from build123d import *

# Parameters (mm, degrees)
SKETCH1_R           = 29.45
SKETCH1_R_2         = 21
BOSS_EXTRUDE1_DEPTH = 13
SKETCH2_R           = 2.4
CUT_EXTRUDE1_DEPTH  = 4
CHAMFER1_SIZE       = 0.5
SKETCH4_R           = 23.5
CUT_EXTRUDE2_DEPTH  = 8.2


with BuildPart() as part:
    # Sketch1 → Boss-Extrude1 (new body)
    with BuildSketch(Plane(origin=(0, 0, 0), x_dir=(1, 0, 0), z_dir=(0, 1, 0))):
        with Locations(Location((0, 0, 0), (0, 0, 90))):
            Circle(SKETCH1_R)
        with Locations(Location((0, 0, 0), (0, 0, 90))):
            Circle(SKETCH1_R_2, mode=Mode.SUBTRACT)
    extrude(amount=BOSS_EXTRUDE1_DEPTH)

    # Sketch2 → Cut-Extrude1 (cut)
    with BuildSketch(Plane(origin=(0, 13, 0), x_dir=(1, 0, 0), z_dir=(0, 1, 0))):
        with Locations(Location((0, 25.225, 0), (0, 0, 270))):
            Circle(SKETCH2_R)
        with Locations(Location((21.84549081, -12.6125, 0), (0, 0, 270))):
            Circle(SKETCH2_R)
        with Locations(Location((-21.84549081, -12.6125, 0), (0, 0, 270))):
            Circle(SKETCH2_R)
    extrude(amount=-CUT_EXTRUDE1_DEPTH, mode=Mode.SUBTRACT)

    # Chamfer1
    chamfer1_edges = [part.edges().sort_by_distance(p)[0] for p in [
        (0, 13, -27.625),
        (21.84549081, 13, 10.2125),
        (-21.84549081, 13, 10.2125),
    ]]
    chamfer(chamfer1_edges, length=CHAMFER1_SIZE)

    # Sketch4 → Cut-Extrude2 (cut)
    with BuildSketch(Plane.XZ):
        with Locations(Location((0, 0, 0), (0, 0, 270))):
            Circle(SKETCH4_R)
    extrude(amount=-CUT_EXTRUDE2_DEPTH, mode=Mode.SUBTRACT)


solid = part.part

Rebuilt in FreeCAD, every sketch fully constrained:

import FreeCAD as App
import Part
import Sketcher

V = App.Vector


def edges_at(feature, points):
    """Names of the edges that pass closest to the given points."""
    edges = feature.Shape.Edges
    near = lambda p: min(range(len(edges)), key=lambda i: edges[i].distToShape(Part.Vertex(*p))[0])
    return sorted({f"Edge{near(p) + 1}" for p in points})

doc = App.newDocument("Part")
params = doc.addObject("Spreadsheet::Sheet", "Params")
for row, (alias, value) in enumerate([
    ("sketch1_diameter", "42 mm"),
    ("sketch1_diameter2", "58.9 mm"),
    ("pad1_length", "13 mm"),
    ("sketch2_diameter", "4.8 mm"),
    ("pocket1_length", "4 mm"),
    ("chamfer_size", "0.5 mm"),
    ("sketch3_diameter", "47 mm"),
    ("pocket2_length", "8.2 mm"),
], start=1):
    params.set(f"A{row}", alias)
    params.set(f"B{row}", "=" + value)
    params.setAlias(f"B{row}", alias)

body = doc.addObject("PartDesign::Body", "Body")

# Sketch on XZ plane
sketch1 = doc.addObject("Sketcher::SketchObject", "Sketch")
body.addObject(sketch1)
sketch1.AttachmentSupport = (doc.XZ_Plane, [""])
sketch1.MapMode = "FlatFace"
sketch1.addGeometry(Part.Circle(V(0, 0, 0), V(0, 0, 1), 29), False)
sketch1.addGeometry(Part.Circle(V(0, 0, 0), V(0, 0, 1), 21), False)
sketch1.addConstraint(Sketcher.Constraint("Coincident", 0, 3, -1, 1))
sketch1.addConstraint(Sketcher.Constraint("Coincident", 1, 3, -1, 1))
sketch1.addConstraint(Sketcher.Constraint("Diameter", 1, 42.0))
sketch1.addConstraint(Sketcher.Constraint("Diameter", 0, 58.9))
sketch1.setExpression("Constraints[2]", "Params.sketch1_diameter")
sketch1.setExpression("Constraints[3]", "Params.sketch1_diameter2")
pad1 = doc.addObject("PartDesign::Pad", "Pad")
body.addObject(pad1)
pad1.Profile = sketch1
pad1.setExpression("Length", "Params.pad1_length")
pad1.Reversed = True

# Sketch on XZ plane
sketch2 = doc.addObject("Sketcher::SketchObject", "Sketch001")
body.addObject(sketch2)
sketch2.AttachmentSupport = (doc.XZ_Plane, [""])
sketch2.MapMode = "FlatFace"
sketch2.AttachmentOffset = App.Placement(V(0, 0, -13), App.Rotation())
sketch2.addGeometry(Part.Circle(V(0, -25.2, 0), V(0, 0, 1), 2.4), False)
sketch2.addGeometry(Part.Circle(V(21.8, 12.6, 0), V(0, 0, 1), 2.4), False)
sketch2.addGeometry(Part.Circle(V(-21.8, 12.6, 0), V(0, 0, 1), 2.4), False)
sketch2.addConstraint(Sketcher.Constraint("Equal", 0, 1))
sketch2.addConstraint(Sketcher.Constraint("Equal", 1, 2))
sketch2.addConstraint(Sketcher.Constraint("Symmetric", 1, 3, 2, 3, -2))
sketch2.addConstraint(Sketcher.Constraint("PointOnObject", 0, 3, -2))
sketch2.addConstraint(Sketcher.Constraint("Diameter", 0, 4.8))
sketch2.addConstraint(Sketcher.Constraint("DistanceY", 0, 3, -1, 1, 25.225))
sketch2.addConstraint(Sketcher.Constraint("DistanceY", -1, 1, 1, 3, 12.6125))
sketch2.addConstraint(Sketcher.Constraint("DistanceX", -1, 1, 1, 3, 21.845491))
sketch2.setExpression("Constraints[4]", "Params.sketch2_diameter")
pocket1 = doc.addObject("PartDesign::Pocket", "Pocket")
body.addObject(pocket1)
pocket1.Profile = sketch2
pocket1.setExpression("Length", "Params.pocket1_length")
pocket1.Reversed = True
doc.recompute()

chamfer = doc.addObject("PartDesign::Chamfer", "Chamfer")
body.addObject(chamfer)
chamfer.Base = (pocket1, edges_at(pocket1, [(0, 13, -27.625), (21.845, 13, 10.213), (-21.845, 13, 10.213)]))
chamfer.setExpression("Size", "Params.chamfer_size")

# Sketch on XZ plane
sketch3 = doc.addObject("Sketcher::SketchObject", "Sketch002")
body.addObject(sketch3)
sketch3.AttachmentSupport = (doc.XZ_Plane, [""])
sketch3.MapMode = "FlatFace"
sketch3.addGeometry(Part.Circle(V(0, 0, 0), V(0, 0, 1), 24), False)
sketch3.addConstraint(Sketcher.Constraint("Coincident", 0, 3, -1, 1))
sketch3.addConstraint(Sketcher.Constraint("Diameter", 0, 47.0))
sketch3.setExpression("Constraints[1]", "Params.sketch3_diameter")
pocket2 = doc.addObject("PartDesign::Pocket", "Pocket001")
body.addObject(pocket2)
pocket2.Profile = sketch3
pocket2.setExpression("Length", "Params.pocket2_length")

doc.recompute()
